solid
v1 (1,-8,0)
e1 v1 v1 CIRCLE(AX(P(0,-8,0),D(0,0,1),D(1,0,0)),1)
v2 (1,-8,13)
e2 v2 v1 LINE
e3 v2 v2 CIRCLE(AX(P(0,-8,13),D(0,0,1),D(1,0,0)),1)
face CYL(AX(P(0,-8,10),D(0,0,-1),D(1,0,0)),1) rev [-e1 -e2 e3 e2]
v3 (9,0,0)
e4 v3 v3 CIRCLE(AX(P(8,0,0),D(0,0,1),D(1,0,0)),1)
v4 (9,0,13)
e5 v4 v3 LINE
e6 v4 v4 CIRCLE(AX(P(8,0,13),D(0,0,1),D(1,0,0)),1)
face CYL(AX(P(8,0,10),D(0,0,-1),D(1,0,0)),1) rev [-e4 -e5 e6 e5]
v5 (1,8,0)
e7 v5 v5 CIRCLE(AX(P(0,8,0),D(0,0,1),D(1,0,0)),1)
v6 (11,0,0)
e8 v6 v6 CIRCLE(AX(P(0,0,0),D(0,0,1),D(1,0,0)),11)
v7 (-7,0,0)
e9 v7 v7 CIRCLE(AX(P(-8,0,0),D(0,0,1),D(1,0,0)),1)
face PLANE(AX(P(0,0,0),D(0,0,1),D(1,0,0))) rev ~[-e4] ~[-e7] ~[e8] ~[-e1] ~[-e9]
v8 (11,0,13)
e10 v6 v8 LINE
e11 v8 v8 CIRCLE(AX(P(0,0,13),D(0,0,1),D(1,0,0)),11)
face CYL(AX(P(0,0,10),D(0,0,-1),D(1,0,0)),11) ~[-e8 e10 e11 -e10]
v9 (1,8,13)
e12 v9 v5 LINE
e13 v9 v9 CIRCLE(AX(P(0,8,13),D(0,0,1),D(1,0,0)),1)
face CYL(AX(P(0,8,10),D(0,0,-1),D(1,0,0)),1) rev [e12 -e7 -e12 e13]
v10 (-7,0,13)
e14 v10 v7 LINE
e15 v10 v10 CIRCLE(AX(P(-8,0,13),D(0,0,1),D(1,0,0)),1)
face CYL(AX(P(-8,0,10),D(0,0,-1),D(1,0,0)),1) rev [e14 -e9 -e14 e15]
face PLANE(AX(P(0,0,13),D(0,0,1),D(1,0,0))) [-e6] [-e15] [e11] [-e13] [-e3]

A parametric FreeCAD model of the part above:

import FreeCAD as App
import Part
import Sketcher
Q = App.Units.Quantity

doc = App.newDocument("Part")
params = doc.addObject("Spreadsheet::Sheet", "Params")
for row, (alias, value) in enumerate([
    ("sketch1_diameter", "22 mm"),
    ("pad1_length", "10 mm"),
    ("sketch2_diameter", "2 mm"),
    ("pocket1_length", "10 mm"),
    ("sketch3_diameter", "22 mm"),
    ("sketch3_diameter2", "2 mm"),
    ("pad2_length", "3 mm"),
], start=1):
    params.set(f"A{row}", alias)
    params.set(f"B{row}", "=" + value)
    params.setAlias(f"B{row}", alias)

body = doc.addObject("PartDesign::Body", "Body")

# Sketch on XY plane
sketch1 = body.newObject("Sketcher::SketchObject", "Sketch")
sketch1.AttachmentSupport = (doc.getObject("XY_Plane"), [""])
sketch1.MapMode = "FlatFace"
sketch1.addGeometry(Part.Circle(App.Vector(0, 0, 0), App.Vector(0, 0, 1), 11), False)
sketch1.addConstraint([
    Sketcher.Constraint("Coincident", 0, 3, -1, 1),
    Sketcher.Constraint("Diameter", 0, Q("22 mm")),
])
sketch1.setExpression("Constraints[1]", "Params.sketch1_diameter")
pad1 = body.newObject("PartDesign::Pad", "Pad")
pad1.Profile = sketch1
pad1.setExpression("Length", "Params.pad1_length")

# Sketch on XY plane
sketch2 = body.newObject("Sketcher::SketchObject", "Sketch001")
sketch2.AttachmentSupport = (doc.getObject("XY_Plane"), [""])
sketch2.MapMode = "FlatFace"
sketch2.AttachmentOffset = App.Placement(App.Vector(0, 0, 10), App.Rotation())
sketch2.addGeometry([
    Part.Circle(App.Vector(8, 0, 0), App.Vector(0, 0, 1), 1),
    Part.Circle(App.Vector(0, 8, 0), App.Vector(0, 0, 1), 1),
    Part.Circle(App.Vector(0, -8, 0), App.Vector(0, 0, 1), 1),
    Part.Circle(App.Vector(-8, 0, 0), App.Vector(0, 0, 1), 1),
], False)
sketch2.addConstraint([
    Sketcher.Constraint("Equal", 0, 1),
    Sketcher.Constraint("Equal", 1, 2),
    Sketcher.Constraint("Equal", 2, 3),
    Sketcher.Constraint("Symmetric", 1, 3, 2, 3, -1, 1),
    Sketcher.Constraint("Symmetric", 0, 3, 3, 3, -1, 1),
    Sketcher.Constraint("PointOnObject", 0, 3, -1),
    Sketcher.Constraint("PointOnObject", 1, 3, -2),
    Sketcher.Constraint("Diameter", 0, Q("2 mm")),
    Sketcher.Constraint("DistanceY", 2, 3, 1, 3, Q("16 mm")),
    Sketcher.Constraint("DistanceX", 3, 3, 0, 3, Q("16 mm")),
])
sketch2.setExpression("Constraints[7]", "Params.sketch2_diameter")
pocket1 = body.newObject("PartDesign::Pocket", "Pocket")
pocket1.Profile = sketch2
pocket1.setExpression("Length", "Params.pocket1_length")

# Sketch on XY plane
sketch3 = body.newObject("Sketcher::SketchObject", "Sketch002")
sketch3.AttachmentSupport = (doc.getObject("XY_Plane"), [""])
sketch3.MapMode = "FlatFace"
sketch3.AttachmentOffset = App.Placement(App.Vector(0, 0, 10), App.Rotation())
sketch3.addGeometry([
    Part.Circle(App.Vector(0, 0, 0), App.Vector(0, 0, 1), 11),  # 0
    Part.Circle(App.Vector(0, -8, 0), App.Vector(0, 0, 1), 1),  # 1
    Part.Circle(App.Vector(-8, 0, 0), App.Vector(0, 0, 1), 1),  # 2
    Part.Circle(App.Vector(8, 0, 0), App.Vector(0, 0, 1), 1),  # 3
    Part.Circle(App.Vector(0, 8, 0), App.Vector(0, 0, 1), 1),  # 4
], False)
sketch3.addConstraint([
    Sketcher.Constraint("Coincident", 0, 3, -1, 1),
    Sketcher.Constraint("Equal", 1, 2),
    Sketcher.Constraint("Equal", 2, 3),
    Sketcher.Constraint("Equal", 3, 4),
    Sketcher.Constraint("Symmetric", 2, 3, 3, 3, -1, 1),
    Sketcher.Constraint("Symmetric", 1, 3, 4, 3, -1, 1),
    Sketcher.Constraint("PointOnObject", 1, 3, -2),
    Sketcher.Constraint("PointOnObject", 2, 3, -1),
    Sketcher.Constraint("Diameter", 0, Q("22 mm")),
    Sketcher.Constraint("Diameter", 1, Q("2 mm")),
    Sketcher.Constraint("DistanceY", 1, 3, -1, 1, Q("8 mm")),
    Sketcher.Constraint("DistanceX", 2, 3, -1, 1, Q("8 mm")),
])
sketch3.setExpression("Constraints[8]", "Params.sketch3_diameter")
sketch3.setExpression("Constraints[9]", "Params.sketch3_diameter2")
pad2 = body.newObject("PartDesign::Pad", "Pad001")
pad2.Profile = sketch3
pad2.setExpression("Length", "Params.pad2_length")

doc.recompute()
